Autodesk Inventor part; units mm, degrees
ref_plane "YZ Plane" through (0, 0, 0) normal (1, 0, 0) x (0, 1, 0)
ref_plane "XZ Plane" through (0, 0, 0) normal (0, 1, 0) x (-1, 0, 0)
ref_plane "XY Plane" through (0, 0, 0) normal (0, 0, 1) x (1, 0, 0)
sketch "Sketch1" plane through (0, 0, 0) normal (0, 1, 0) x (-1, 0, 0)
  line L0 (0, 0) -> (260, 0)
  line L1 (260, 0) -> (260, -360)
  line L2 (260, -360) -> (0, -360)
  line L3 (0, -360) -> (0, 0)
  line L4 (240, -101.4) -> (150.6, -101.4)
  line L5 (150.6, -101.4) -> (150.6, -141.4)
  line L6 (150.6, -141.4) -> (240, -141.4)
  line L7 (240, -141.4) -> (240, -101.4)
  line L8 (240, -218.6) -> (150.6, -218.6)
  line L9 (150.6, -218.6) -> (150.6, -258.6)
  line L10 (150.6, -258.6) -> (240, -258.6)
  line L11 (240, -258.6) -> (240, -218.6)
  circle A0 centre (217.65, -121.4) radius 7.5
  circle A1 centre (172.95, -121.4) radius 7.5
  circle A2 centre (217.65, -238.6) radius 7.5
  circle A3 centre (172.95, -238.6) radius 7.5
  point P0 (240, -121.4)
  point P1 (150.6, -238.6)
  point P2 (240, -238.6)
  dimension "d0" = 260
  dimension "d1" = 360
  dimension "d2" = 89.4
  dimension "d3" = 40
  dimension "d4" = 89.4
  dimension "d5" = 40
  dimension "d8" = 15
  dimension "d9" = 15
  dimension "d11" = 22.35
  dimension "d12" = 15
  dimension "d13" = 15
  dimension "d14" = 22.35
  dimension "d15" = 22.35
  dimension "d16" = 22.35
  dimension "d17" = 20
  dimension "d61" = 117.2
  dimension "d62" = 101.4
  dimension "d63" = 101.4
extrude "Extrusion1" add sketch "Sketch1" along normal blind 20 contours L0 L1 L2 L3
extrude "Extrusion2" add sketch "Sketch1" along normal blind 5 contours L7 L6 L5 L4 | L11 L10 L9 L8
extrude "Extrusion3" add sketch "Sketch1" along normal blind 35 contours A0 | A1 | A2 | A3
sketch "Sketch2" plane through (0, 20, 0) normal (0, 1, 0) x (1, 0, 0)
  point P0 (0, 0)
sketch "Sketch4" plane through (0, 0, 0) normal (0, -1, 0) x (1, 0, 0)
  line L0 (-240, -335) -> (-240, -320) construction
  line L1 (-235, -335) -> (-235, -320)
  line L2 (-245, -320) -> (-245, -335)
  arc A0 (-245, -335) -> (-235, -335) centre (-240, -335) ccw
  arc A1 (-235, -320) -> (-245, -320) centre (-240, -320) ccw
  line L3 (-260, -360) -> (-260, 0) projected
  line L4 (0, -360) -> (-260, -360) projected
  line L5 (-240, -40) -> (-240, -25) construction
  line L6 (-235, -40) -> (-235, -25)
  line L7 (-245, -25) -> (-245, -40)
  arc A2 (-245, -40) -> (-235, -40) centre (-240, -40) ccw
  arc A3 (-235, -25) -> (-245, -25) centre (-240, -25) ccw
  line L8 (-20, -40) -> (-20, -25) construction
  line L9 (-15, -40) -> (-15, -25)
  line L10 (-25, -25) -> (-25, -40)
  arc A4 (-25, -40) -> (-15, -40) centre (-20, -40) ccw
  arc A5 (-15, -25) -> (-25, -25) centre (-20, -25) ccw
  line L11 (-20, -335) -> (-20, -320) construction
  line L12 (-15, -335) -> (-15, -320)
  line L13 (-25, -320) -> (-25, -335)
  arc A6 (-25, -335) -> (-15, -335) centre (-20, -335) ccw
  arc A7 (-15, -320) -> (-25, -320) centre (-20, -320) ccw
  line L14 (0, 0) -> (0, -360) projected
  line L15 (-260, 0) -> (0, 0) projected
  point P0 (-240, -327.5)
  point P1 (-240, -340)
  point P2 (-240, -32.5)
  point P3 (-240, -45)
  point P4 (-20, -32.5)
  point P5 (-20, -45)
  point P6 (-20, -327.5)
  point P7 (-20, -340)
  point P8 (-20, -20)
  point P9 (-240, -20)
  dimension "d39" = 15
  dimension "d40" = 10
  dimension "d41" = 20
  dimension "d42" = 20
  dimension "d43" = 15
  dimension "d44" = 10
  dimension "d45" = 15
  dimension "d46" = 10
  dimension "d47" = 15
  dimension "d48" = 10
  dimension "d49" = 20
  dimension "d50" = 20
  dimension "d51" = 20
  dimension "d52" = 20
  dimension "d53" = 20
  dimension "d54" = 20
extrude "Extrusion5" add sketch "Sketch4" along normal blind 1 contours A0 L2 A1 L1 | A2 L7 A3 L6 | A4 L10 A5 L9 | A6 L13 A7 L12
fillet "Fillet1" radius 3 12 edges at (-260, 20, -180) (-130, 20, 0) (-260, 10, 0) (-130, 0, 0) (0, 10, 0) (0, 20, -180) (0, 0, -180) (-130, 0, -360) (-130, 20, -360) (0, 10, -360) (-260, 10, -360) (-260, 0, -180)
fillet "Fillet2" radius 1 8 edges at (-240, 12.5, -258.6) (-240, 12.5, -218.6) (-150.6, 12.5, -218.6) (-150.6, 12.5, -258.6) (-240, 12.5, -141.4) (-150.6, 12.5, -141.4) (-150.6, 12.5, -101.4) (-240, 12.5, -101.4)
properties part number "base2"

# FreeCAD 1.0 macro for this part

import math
import FreeCAD as App
import Part
import Sketcher
from FreeCAD import Vector
Q = App.Units.Quantity


def edges_at(feature, points):
    """Names of the edges that pass closest to the given points."""
    edges = feature.Shape.Edges
    near = lambda p: min(range(len(edges)), key=lambda i: edges[i].distToShape(Part.Vertex(*p))[0])
    return sorted({f"Edge{near(p) + 1}" for p in points})

doc = App.newDocument("Part")
body = doc.addObject("PartDesign::Body", "Body")

# Sketch on XZ plane
sketch1 = body.newObject("Sketcher::SketchObject", "Sketch")
sketch1.AttachmentSupport = (doc.getObject("XZ_Plane"), [""])
sketch1.MapMode = "FlatFace"
sketch1.addGeometry(Part.LineSegment(Vector(-260, 0, 0), Vector(0, 0, 0)), False)
sketch1.addGeometry(Part.LineSegment(Vector(0, 0, 0), Vector(0, -360, 0)), False)
sketch1.addGeometry(Part.LineSegment(Vector(0, -360, 0), Vector(-260, -360, 0)), False)
sketch1.addGeometry(Part.LineSegment(Vector(-260, -360, 0), Vector(-260, 0, 0)), False)
sketch1.addGeometry(Part.LineSegment(Vector(-151, -219, 0), Vector(-240, -219, 0)), False)
sketch1.addGeometry(Part.LineSegment(Vector(-240, -219, 0), Vector(-240, -259, 0)), False)
sketch1.addGeometry(Part.LineSegment(Vector(-240, -259, 0), Vector(-151, -259, 0)), False)
sketch1.addGeometry(Part.LineSegment(Vector(-151, -259, 0), Vector(-151, -219, 0)), False)
sketch1.addGeometry(Part.LineSegment(Vector(-151, -101, 0), Vector(-240, -101, 0)), False)
sketch1.addGeometry(Part.LineSegment(Vector(-240, -101, 0), Vector(-240, -141, 0)), False)
sketch1.addGeometry(Part.LineSegment(Vector(-240, -141, 0), Vector(-151, -141, 0)), False)
sketch1.addGeometry(Part.LineSegment(Vector(-151, -141, 0), Vector(-151, -101, 0)), False)
sketch1.addConstraint(Sketcher.Constraint("Coincident", 0, 2, 1, 1))
sketch1.addConstraint(Sketcher.Constraint("Coincident", 1, 2, 2, 1))
sketch1.addConstraint(Sketcher.Constraint("Coincident", 2, 2, 3, 1))
sketch1.addConstraint(Sketcher.Constraint("Coincident", 3, 2, 0, 1))
sketch1.addConstraint(Sketcher.Constraint("Coincident", 4, 2, 5, 1))
sketch1.addConstraint(Sketcher.Constraint("Coincident", 5, 2, 6, 1))
sketch1.addConstraint(Sketcher.Constraint("Coincident", 6, 2, 7, 1))
sketch1.addConstraint(Sketcher.Constraint("Coincident", 7, 2, 4, 1))
sketch1.addConstraint(Sketcher.Constraint("Coincident", 8, 2, 9, 1))
sketch1.addConstraint(Sketcher.Constraint("Coincident", 9, 2, 10, 1))
sketch1.addConstraint(Sketcher.Constraint("Coincident", 10, 2, 11, 1))
sketch1.addConstraint(Sketcher.Constraint("Coincident", 11, 2, 8, 1))
sketch1.addConstraint(Sketcher.Constraint("Horizontal", 0))
sketch1.addConstraint(Sketcher.Constraint("Vertical", 1))
sketch1.addConstraint(Sketcher.Constraint("Horizontal", 2))
sketch1.addConstraint(Sketcher.Constraint("Vertical", 3))
sketch1.addConstraint(Sketcher.Constraint("Horizontal", 4))
sketch1.addConstraint(Sketcher.Constraint("Vertical", 5))
sketch1.addConstraint(Sketcher.Constraint("Horizontal", 6))
sketch1.addConstraint(Sketcher.Constraint("Vertical", 7))
sketch1.addConstraint(Sketcher.Constraint("Horizontal", 8))
sketch1.addConstraint(Sketcher.Constraint("Vertical", 9))
sketch1.addConstraint(Sketcher.Constraint("Horizontal", 10))
sketch1.addConstraint(Sketcher.Constraint("Vertical", 11))
sketch1.addConstraint(Sketcher.Constraint("Coincident", 0, 2, -1, 1))
sketch1.addConstraint(Sketcher.Constraint("Vertical", 5, 2, 8, 2))
sketch1.addConstraint(Sketcher.Constraint("Vertical", 7, 2, 10, 2))
sketch1.addConstraint(Sketcher.Constraint("Equal", 7, 9))
sketch1.addConstraint(Sketcher.Constraint("DistanceX", 0, 1, 0, 2, Q("260 mm")))
sketch1.addConstraint(Sketcher.Constraint("DistanceY", 1, 2, 1, 1, Q("360 mm")))
sketch1.addConstraint(Sketcher.Constraint("DistanceY", 5, 2, 5, 1, Q("40 mm")))
sketch1.addConstraint(Sketcher.Constraint("DistanceX", 4, 2, 4, 1, Q("89.4 mm")))
sketch1.addConstraint(Sketcher.Constraint("DistanceX", 2, 2, 4, 2, Q("20 mm")))
sketch1.addConstraint(Sketcher.Constraint("DistanceY", 8, 2, -1, 1, Q("101.4 mm")))
sketch1.addConstraint(Sketcher.Constraint("DistanceY", 2, 2, 5, 2, Q("101.4 mm")))
pad1 = body.newObject("PartDesign::Pad", "Pad")
pad1.Profile = sketch1
pad1.Length = 20
pad1.Reversed = True

# Sketch on XZ plane
sketch2 = body.newObject("Sketcher::SketchObject", "Sketch001")
sketch2.AttachmentSupport = (doc.getObject("XZ_Plane"), [""])
sketch2.MapMode = "FlatFace"
sketch2.addGeometry(Part.LineSegment(Vector(-240, -141, 0), Vector(-240, -101, 0)), False)
sketch2.addGeometry(Part.LineSegment(Vector(-240, -101, 0), Vector(-151, -101, 0)), False)
sketch2.addGeometry(Part.LineSegment(Vector(-151, -101, 0), Vector(-151, -141, 0)), False)
sketch2.addGeometry(Part.LineSegment(Vector(-151, -141, 0), Vector(-240, -141, 0)), False)
sketch2.addGeometry(Part.Circle(Vector(-173, -121, 0), Vector(0, 0, 1), 8), False)
sketch2.addGeometry(Part.Circle(Vector(-218, -121, 0), Vector(0, 0, 1), 8), False)
sketch2.addGeometry(Part.LineSegment(Vector(-240, -259, 0), Vector(-240, -219, 0)), False)
sketch2.addGeometry(Part.LineSegment(Vector(-240, -219, 0), Vector(-151, -219, 0)), False)
sketch2.addGeometry(Part.LineSegment(Vector(-151, -219, 0), Vector(-151, -259, 0)), False)
sketch2.addGeometry(Part.LineSegment(Vector(-151, -259, 0), Vector(-240, -259, 0)), False)
sketch2.addGeometry(Part.Circle(Vector(-173, -239, 0), Vector(0, 0, 1), 8), False)
sketch2.addGeometry(Part.Circle(Vector(-218, -239, 0), Vector(0, 0, 1), 8), False)
sketch2.addConstraint(Sketcher.Constraint("Coincident", 0, 2, 1, 1))
sketch2.addConstraint(Sketcher.Constraint("Coincident", 1, 2, 2, 1))
sketch2.addConstraint(Sketcher.Constraint("Coincident", 2, 2, 3, 1))
sketch2.addConstraint(Sketcher.Constraint("Coincident", 3, 2, 0, 1))
sketch2.addConstraint(Sketcher.Constraint("Coincident", 6, 2, 7, 1))
sketch2.addConstraint(Sketcher.Constraint("Coincident", 7, 2, 8, 1))
sketch2.addConstraint(Sketcher.Constraint("Coincident", 8, 2, 9, 1))
sketch2.addConstraint(Sketcher.Constraint("Coincident", 9, 2, 6, 1))
sketch2.addConstraint(Sketcher.Constraint("Vertical", 0))
sketch2.addConstraint(Sketcher.Constraint("Horizontal", 1))
sketch2.addConstraint(Sketcher.Constraint("Vertical", 2))
sketch2.addConstraint(Sketcher.Constraint("Horizontal", 3))
sketch2.addConstraint(Sketcher.Constraint("Vertical", 6))
sketch2.addConstraint(Sketcher.Constraint("Horizontal", 7))
sketch2.addConstraint(Sketcher.Constraint("Vertical", 8))
sketch2.addConstraint(Sketcher.Constraint("Horizontal", 9))
sketch2.addConstraint(Sketcher.Constraint("Equal", 4, 5))
sketch2.addConstraint(Sketcher.Constraint("Equal", 5, 10))
sketch2.addConstraint(Sketcher.Constraint("Equal", 10, 11))
sketch2.addConstraint(Sketcher.Constraint("Horizontal", 4, 3, 5, 3))
sketch2.addConstraint(Sketcher.Constraint("Horizontal", 10, 3, 11, 3))
sketch2.addConstraint(Sketcher.Constraint("Vertical", 4, 3, 10, 3))
sketch2.addConstraint(Sketcher.Constraint("Vertical", 5, 3, 11, 3))
sketch2.addConstraint(Sketcher.Constraint("Vertical", 3, 2, 6, 2))
sketch2.addConstraint(Sketcher.Constraint("Vertical", 2, 2, 7, 2))
sketch2.addConstraint(Sketcher.Constraint("Equal", 2, 6))
sketch2.addConstraint(Sketcher.Constraint("Diameter", 4, Q("15 mm")))
sketch2.addConstraint(Sketcher.Constraint("DistanceY", 0, 1, 0, 2, Q("40 mm")))
sketch2.addConstraint(Sketcher.Constraint("DistanceX", 1, 1, 1, 2, Q("89.4 mm")))
sketch2.addConstraint(Sketcher.Constraint("DistanceY", 5, 3, 0, 2, Q("20 mm")))
sketch2.addConstraint(Sketcher.Constraint("DistanceY", 11, 3, 6, 2, Q("20 mm")))
sketch2.addConstraint(Sketcher.Constraint("DistanceY", 0, 2, -1, 1, Q("101.4 mm")))
sketch2.addConstraint(Sketcher.Constraint("DistanceY", 10, 3, 4, 3, Q("117.2 mm")))
sketch2.addConstraint(Sketcher.Constraint("DistanceX", 0, 2, 5, 3, Q("22.35 mm")))
sketch2.addConstraint(Sketcher.Constraint("DistanceX", 4, 3, 1, 2, Q("22.35 mm")))
sketch2.addConstraint(Sketcher.Constraint("DistanceX", 0, 2, -1, 1, Q("240 mm")))
pad2 = body.newObject("PartDesign::Pad", "Pad001")
pad2.Profile = sketch2
pad2.Length = 5
pad2.Reversed = True

# Sketch on XZ plane
sketch3 = body.newObject("Sketcher::SketchObject", "Sketch002")
sketch3.AttachmentSupport = (doc.getObject("XZ_Plane"), [""])
sketch3.MapMode = "FlatFace"
sketch3.addGeometry(Part.Circle(Vector(-218, -121, 0), Vector(0, 0, 1), 8), False)
sketch3.addGeometry(Part.Circle(Vector(-173, -121, 0), Vector(0, 0, 1), 8), False)
sketch3.addGeometry(Part.Circle(Vector(-218, -239, 0), Vector(0, 0, 1), 8), False)
sketch3.addGeometry(Part.Circle(Vector(-173, -239, 0), Vector(0, 0, 1), 8), False)
sketch3.addConstraint(Sketcher.Constraint("Equal", 0, 1))
sketch3.addConstraint(Sketcher.Constraint("Equal", 1, 2))
sketch3.addConstraint(Sketcher.Constraint("Equal", 2, 3))
sketch3.addConstraint(Sketcher.Constraint("Horizontal", 0, 3, 1, 3))
sketch3.addConstraint(Sketcher.Constraint("Horizontal", 2, 3, 3, 3))
sketch3.addConstraint(Sketcher.Constraint("Vertical", 0, 3, 2, 3))
sketch3.addConstraint(Sketcher.Constraint("Vertical", 1, 3, 3, 3))
sketch3.addConstraint(Sketcher.Constraint("Diameter", 0, Q("15 mm")))
sketch3.addConstraint(Sketcher.Constraint("DistanceY", 2, 3, 0, 3, Q("117.2 mm")))
sketch3.addConstraint(Sketcher.Constraint("DistanceY", 0, 3, -1, 1, Q("121.4 mm")))
sketch3.addConstraint(Sketcher.Constraint("DistanceX", 0, 3, 1, 3, Q("44.7 mm")))
sketch3.addConstraint(Sketcher.Constraint("DistanceX", 0, 3, -1, 1, Q("217.65 mm")))
pad3 = body.newObject("PartDesign::Pad", "Pad002")
pad3.Profile = sketch3
pad3.Length = 35
pad3.Reversed = True

# Sketch on XZ plane
sketch4 = body.newObject("Sketcher::SketchObject", "Sketch003")
sketch4.AttachmentSupport = (doc.getObject("XZ_Plane"), [""])
sketch4.MapMode = "FlatFace"
sketch4.addGeometry(Part.ArcOfCircle(Part.Circle(Vector(-240, -335, 0), Vector(0, 0, 1), 5), math.radians(180), math.radians(360)), False)
sketch4.addGeometry(Part.LineSegment(Vector(-235, -335, 0), Vector(-235, -320, 0)), False)
sketch4.addGeometry(Part.ArcOfCircle(Part.Circle(Vector(-240, -320, 0), Vector(0, 0, 1), 5), math.radians(0), math.radians(180)), False)
sketch4.addGeometry(Part.LineSegment(Vector(-245, -320, 0), Vector(-245, -335, 0)), False)
sketch4.addGeometry(Part.ArcOfCircle(Part.Circle(Vector(-240, -40, 0), Vector(0, 0, 1), 5), math.radians(180), math.radians(360)), False)
sketch4.addGeometry(Part.LineSegment(Vector(-235, -40, 0), Vector(-235, -25, 0)), False)
sketch4.addGeometry(Part.ArcOfCircle(Part.Circle(Vector(-240, -25, 0), Vector(0, 0, 1), 5), math.radians(0), math.radians(180)), False)
sketch4.addGeometry(Part.LineSegment(Vector(-245, -25, 0), Vector(-245, -40, 0)), False)
sketch4.addGeometry(Part.ArcOfCircle(Part.Circle(Vector(-20, -40, 0), Vector(0, 0, 1), 5), math.radians(180), math.radians(360)), False)
sketch4.addGeometry(Part.LineSegment(Vector(-15, -40, 0), Vector(-15, -25, 0)), False)
sketch4.addGeometry(Part.ArcOfCircle(Part.Circle(Vector(-20, -25, 0), Vector(0, 0, 1), 5), math.radians(0), math.radians(180)), False)
sketch4.addGeometry(Part.LineSegment(Vector(-25, -25, 0), Vector(-25, -40, 0)), False)
sketch4.addGeometry(Part.ArcOfCircle(Part.Circle(Vector(-20, -335, 0), Vector(0, 0, 1), 5), math.radians(180), math.radians(360)), False)
sketch4.addGeometry(Part.LineSegment(Vector(-15, -335, 0), Vector(-15, -320, 0)), False)
sketch4.addGeometry(Part.ArcOfCircle(Part.Circle(Vector(-20, -320, 0), Vector(0, 0, 1), 5), math.radians(0), math.radians(180)), False)
sketch4.addGeometry(Part.LineSegment(Vector(-25, -320, 0), Vector(-25, -335, 0)), False)
sketch4.addConstraint(Sketcher.Constraint("Tangent", 0, 2, 1, 1))
sketch4.addConstraint(Sketcher.Constraint("Tangent", 1, 2, 2, 1))
sketch4.addConstraint(Sketcher.Constraint("Tangent", 2, 2, 3, 1))
sketch4.addConstraint(Sketcher.Constraint("Tangent", 3, 2, 0, 1))
sketch4.addConstraint(Sketcher.Constraint("Tangent", 4, 2, 5, 1))
sketch4.addConstraint(Sketcher.Constraint("Tangent", 5, 2, 6, 1))
sketch4.addConstraint(Sketcher.Constraint("Tangent", 6, 2, 7, 1))
sketch4.addConstraint(Sketcher.Constraint("Tangent", 7, 2, 4, 1))
sketch4.addConstraint(Sketcher.Constraint("Tangent", 8, 2, 9, 1))
sketch4.addConstraint(Sketcher.Constraint("Tangent", 9, 2, 10, 1))
sketch4.addConstraint(Sketcher.Constraint("Tangent", 10, 2, 11, 1))
sketch4.addConstraint(Sketcher.Constraint("Tangent", 11, 2, 8, 1))
sketch4.addConstraint(Sketcher.Constraint("Tangent", 12, 2, 13, 1))
sketch4.addConstraint(Sketcher.Constraint("Tangent", 13, 2, 14, 1))
sketch4.addConstraint(Sketcher.Constraint("Tangent", 14, 2, 15, 1))
sketch4.addConstraint(Sketcher.Constraint("Tangent", 15, 2, 12, 1))
sketch4.addConstraint(Sketcher.Constraint("Vertical", 1))
sketch4.addConstraint(Sketcher.Constraint("Vertical", 3))
sketch4.addConstraint(Sketcher.Constraint("Vertical", 5))
sketch4.addConstraint(Sketcher.Constraint("Vertical", 7))
sketch4.addConstraint(Sketcher.Constraint("Vertical", 9))
sketch4.addConstraint(Sketcher.Constraint("Vertical", 11))
sketch4.addConstraint(Sketcher.Constraint("Vertical", 13))
sketch4.addConstraint(Sketcher.Constraint("Vertical", 15))
sketch4.addConstraint(Sketcher.Constraint("Equal", 2, 4))
sketch4.addConstraint(Sketcher.Constraint("Equal", 6, 8))
sketch4.addConstraint(Sketcher.Constraint("Equal", 10, 12))
sketch4.addConstraint(Sketcher.Constraint("Horizontal", 4, 3, 8, 3))
sketch4.addConstraint(Sketcher.Constraint("Horizontal", 6, 3, 10, 3))
sketch4.addConstraint(Sketcher.Constraint("Horizontal", 0, 3, 12, 3))
sketch4.addConstraint(Sketcher.Constraint("Horizontal", 2, 3, 14, 3))
sketch4.addConstraint(Sketcher.Constraint("Vertical", 2, 3, 4, 3))
sketch4.addConstraint(Sketcher.Constraint("Vertical", 10, 3, 12, 3))
sketch4.addConstraint(Sketcher.Constraint("Equal", 3, 5))
sketch4.addConstraint(Sketcher.Constraint("Radius", 0, Q("5 mm")))
sketch4.addConstraint(Sketcher.Constraint("DistanceY", 1, 1, 1, 2, Q("15 mm")))
sketch4.addConstraint(Sketcher.Constraint("DistanceX", 8, 3, -1, 1, Q("20 mm")))
sketch4.addConstraint(Sketcher.Constraint("DistanceX", 0, 3, -1, 1, Q("240 mm")))
sketch4.addConstraint(Sketcher.Constraint("DistanceY", 0, 3, -1, 1, Q("335 mm")))
sketch4.addConstraint(Sketcher.Constraint("DistanceY", 4, 3, -1, 1, Q("40 mm")))
pad4 = body.newObject("PartDesign::Pad", "Pad003")
pad4.Profile = sketch4
pad4.Length = 1
doc.recompute()

fillet = body.newObject("PartDesign::Fillet", "Fillet")
fillet.Base = (pad4, edges_at(pad4, [
    (-260, 20, -180),
    (-130, 20, 0),
    (-260, 10, 0),
    (-130, 0, 0),
    (0, 10, 0),
    (0, 20, -180),
    (0, 0, -180),
    (-130, 0, -360),
    (-130, 20, -360),
    (0, 10, -360),
    (-260, 10, -360),
    (-260, 0, -180),
]))
fillet.Radius = 3
doc.recompute()

fillet2 = body.newObject("PartDesign::Fillet", "Fillet001")
fillet2.Base = (fillet, edges_at(fillet, [
    (-240, 12.5, -258.6),
    (-240, 12.5, -218.6),
    (-150.6, 12.5, -218.6),
    (-150.6, 12.5, -258.6),
    (-240, 12.5, -141.4),
    (-150.6, 12.5, -141.4),
    (-150.6, 12.5, -101.4),
    (-240, 12.5, -101.4),
]))
fillet2.Radius = 1

doc.recompute()
